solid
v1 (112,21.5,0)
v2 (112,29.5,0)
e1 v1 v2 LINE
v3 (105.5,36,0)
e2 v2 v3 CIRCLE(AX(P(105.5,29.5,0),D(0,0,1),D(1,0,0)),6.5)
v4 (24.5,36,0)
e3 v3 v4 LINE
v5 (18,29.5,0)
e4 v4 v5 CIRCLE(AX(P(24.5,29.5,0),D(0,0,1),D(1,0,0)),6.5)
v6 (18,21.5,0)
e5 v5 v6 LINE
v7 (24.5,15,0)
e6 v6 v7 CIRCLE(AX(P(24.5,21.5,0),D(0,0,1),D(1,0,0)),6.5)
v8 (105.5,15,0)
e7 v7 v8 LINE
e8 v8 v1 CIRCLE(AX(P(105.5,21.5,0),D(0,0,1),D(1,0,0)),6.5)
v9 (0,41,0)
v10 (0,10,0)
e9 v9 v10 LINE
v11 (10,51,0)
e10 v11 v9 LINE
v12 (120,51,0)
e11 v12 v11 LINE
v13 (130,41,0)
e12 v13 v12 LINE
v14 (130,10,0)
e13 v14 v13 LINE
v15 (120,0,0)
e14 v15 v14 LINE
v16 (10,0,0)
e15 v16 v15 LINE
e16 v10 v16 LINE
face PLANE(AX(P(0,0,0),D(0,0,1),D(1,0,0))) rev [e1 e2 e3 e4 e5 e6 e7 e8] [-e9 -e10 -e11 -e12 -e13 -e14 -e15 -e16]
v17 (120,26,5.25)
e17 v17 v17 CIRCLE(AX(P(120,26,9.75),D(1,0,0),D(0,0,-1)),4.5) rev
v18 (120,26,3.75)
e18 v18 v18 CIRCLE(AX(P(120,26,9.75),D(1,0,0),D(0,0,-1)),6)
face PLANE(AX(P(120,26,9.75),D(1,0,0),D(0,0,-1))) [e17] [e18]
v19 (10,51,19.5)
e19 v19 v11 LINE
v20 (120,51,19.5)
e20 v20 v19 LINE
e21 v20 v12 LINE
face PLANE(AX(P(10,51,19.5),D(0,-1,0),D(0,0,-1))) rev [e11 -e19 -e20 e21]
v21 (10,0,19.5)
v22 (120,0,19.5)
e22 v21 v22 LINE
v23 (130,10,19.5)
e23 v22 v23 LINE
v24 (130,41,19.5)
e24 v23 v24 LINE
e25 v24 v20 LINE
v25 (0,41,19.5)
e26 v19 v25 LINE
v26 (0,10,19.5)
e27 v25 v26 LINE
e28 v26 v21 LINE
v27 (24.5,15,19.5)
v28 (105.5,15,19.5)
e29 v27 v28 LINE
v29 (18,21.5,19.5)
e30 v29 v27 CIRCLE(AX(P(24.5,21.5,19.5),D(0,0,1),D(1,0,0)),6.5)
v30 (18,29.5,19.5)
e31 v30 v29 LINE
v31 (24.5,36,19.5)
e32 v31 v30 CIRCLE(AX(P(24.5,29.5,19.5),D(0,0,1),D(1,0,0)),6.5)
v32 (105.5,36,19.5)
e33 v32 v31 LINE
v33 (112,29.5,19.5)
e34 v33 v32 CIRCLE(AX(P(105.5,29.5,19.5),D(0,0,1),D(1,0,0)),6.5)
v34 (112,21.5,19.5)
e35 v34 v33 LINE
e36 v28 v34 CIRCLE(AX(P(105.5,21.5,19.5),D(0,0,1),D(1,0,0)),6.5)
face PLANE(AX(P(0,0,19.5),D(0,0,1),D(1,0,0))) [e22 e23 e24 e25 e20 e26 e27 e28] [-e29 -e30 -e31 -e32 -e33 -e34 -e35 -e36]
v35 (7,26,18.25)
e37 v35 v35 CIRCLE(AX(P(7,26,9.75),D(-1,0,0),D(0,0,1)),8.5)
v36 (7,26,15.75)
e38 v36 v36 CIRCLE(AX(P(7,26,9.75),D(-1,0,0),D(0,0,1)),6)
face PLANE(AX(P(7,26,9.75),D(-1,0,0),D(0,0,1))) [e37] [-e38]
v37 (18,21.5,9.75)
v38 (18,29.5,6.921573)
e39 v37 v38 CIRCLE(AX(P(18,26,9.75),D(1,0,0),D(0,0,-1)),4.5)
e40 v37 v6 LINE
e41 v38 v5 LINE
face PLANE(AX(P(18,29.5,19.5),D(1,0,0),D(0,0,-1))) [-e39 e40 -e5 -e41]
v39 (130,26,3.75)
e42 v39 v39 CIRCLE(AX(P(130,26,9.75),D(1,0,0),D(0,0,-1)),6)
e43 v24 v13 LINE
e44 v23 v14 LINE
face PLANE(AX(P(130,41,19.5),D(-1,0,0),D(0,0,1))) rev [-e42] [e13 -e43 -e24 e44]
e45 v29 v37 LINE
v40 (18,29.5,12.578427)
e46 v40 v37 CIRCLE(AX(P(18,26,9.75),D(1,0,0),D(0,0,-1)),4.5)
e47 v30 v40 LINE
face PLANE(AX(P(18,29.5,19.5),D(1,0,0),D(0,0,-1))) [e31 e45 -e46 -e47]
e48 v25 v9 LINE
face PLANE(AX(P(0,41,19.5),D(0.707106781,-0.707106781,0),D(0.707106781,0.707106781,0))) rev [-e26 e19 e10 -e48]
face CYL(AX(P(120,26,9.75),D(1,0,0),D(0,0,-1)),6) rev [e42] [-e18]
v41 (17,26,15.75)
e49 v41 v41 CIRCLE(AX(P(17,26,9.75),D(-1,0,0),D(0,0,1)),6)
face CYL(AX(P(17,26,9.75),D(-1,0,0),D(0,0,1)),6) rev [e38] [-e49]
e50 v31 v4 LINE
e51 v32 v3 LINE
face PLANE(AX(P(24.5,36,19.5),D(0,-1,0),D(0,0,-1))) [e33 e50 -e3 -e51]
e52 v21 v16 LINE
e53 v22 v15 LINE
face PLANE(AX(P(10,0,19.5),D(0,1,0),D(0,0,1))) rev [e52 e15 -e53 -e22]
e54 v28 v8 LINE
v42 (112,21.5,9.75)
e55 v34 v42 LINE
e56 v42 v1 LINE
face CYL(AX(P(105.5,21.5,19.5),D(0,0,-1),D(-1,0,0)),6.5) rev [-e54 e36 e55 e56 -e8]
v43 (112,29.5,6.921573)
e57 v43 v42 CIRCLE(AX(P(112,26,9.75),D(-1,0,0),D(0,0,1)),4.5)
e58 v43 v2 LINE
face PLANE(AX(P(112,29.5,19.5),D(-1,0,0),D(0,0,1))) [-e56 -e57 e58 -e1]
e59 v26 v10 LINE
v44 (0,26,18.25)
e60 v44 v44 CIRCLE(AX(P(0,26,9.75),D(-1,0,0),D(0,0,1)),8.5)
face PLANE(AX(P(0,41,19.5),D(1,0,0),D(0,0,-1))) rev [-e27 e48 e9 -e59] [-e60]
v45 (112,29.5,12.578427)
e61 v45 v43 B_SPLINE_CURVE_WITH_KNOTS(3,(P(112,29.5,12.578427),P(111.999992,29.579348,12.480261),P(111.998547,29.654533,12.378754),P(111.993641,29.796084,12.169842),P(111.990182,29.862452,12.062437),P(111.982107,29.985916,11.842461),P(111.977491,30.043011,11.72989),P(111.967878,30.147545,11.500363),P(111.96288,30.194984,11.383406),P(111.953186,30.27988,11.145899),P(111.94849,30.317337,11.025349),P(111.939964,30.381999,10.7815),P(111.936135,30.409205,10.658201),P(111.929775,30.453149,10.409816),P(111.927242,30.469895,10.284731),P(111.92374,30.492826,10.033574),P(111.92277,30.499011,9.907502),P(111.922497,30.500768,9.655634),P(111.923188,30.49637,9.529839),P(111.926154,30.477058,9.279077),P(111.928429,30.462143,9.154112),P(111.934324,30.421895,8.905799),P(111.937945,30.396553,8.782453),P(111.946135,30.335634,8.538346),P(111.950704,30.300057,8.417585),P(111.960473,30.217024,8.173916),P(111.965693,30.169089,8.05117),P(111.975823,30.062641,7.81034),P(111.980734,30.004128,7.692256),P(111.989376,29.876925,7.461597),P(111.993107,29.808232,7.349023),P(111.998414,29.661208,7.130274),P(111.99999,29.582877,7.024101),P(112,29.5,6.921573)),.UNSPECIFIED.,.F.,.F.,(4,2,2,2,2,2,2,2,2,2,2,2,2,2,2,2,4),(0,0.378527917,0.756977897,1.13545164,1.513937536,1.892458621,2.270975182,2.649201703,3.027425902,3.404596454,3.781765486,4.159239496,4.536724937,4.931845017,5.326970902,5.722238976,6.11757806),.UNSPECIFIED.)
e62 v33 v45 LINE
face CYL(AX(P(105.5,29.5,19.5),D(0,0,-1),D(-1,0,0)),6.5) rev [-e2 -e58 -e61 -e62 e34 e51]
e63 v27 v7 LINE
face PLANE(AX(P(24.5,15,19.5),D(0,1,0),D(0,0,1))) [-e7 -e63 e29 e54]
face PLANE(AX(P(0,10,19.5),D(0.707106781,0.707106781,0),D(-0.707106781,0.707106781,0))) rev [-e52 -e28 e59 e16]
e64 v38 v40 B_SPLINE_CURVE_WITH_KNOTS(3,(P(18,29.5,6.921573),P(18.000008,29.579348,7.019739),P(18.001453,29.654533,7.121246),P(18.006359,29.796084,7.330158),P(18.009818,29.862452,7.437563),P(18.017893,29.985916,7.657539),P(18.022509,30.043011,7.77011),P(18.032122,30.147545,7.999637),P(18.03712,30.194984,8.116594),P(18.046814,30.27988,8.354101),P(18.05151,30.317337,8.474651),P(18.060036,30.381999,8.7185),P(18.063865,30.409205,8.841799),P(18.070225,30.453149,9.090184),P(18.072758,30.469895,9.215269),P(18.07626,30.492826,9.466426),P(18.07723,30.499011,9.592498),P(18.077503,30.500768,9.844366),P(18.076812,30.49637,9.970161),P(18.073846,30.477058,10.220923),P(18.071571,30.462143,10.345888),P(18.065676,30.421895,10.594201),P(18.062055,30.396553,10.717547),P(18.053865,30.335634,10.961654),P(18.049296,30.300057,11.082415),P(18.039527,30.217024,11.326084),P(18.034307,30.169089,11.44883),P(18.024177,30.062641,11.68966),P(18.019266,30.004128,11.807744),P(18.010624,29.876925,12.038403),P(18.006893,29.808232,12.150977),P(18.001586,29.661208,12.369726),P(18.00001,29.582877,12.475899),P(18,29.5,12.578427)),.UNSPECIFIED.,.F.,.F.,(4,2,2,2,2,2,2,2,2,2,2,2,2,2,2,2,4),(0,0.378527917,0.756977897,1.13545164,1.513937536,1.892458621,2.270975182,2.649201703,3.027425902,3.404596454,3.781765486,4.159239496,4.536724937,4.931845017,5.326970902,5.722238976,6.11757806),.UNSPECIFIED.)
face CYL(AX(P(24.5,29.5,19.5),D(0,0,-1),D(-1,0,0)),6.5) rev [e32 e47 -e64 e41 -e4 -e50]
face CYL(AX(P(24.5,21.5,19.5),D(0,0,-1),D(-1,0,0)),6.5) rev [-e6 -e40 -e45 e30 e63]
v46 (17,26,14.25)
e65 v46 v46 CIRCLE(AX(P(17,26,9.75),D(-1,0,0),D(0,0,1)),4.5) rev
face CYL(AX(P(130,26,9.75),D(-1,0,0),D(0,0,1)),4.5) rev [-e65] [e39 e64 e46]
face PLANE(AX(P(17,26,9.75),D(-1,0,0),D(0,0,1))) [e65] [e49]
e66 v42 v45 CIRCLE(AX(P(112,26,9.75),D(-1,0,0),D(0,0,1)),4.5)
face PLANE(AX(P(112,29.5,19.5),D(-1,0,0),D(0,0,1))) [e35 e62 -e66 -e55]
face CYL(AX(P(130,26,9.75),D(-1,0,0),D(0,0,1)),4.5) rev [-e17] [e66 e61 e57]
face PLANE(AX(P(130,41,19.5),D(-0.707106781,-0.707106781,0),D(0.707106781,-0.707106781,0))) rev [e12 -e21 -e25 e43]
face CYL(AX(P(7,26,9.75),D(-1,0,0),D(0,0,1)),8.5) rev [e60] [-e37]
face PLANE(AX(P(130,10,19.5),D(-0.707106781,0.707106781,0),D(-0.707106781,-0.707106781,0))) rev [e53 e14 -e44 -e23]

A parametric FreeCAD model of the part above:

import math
import FreeCAD as App
import Part
import Sketcher
from FreeCAD import Vector
Q = App.Units.Quantity


def add_polygon(sketch, points):
    """Adds a closed chain of lines whose ends are joined by coincident constraints."""
    first, n = sketch.GeometryCount, len(points)
    for a, b in zip(points, points[1:] + points[:1]):
        sketch.addGeometry(Part.LineSegment(App.Vector(*a, 0), App.Vector(*b, 0)), False)
    for i in range(n):
        sketch.addConstraint(Sketcher.Constraint("Coincident", first + i, 2, first + (i + 1) % n, 1))

doc = App.newDocument("Part")
body = doc.addObject("PartDesign::Body", "Body")

# Sketch on XY plane
sketch1 = doc.addObject("Sketcher::SketchObject", "Sketch")
body.addObject(sketch1)
sketch1.AttachmentSupport = (doc.XY_Plane, [""])
sketch1.MapMode = "FlatFace"
add_polygon(sketch1, [(0, 41), (0, 10), (10, 0), (120, 0), (130, 10), (130, 41), (120, 51), (10, 51)])  # lines 0-7
sketch1.addGeometry(Part.LineSegment(Vector(105.5, 15, 0), Vector(24.5, 15, 0)), False)  # 8
sketch1.addGeometry(Part.ArcOfCircle(Part.Circle(Vector(24.5, 21.5, 0), Vector(0, 0, 1), 6.5), math.radians(180), math.radians(270)), False)  # 9
sketch1.addGeometry(Part.LineSegment(Vector(18, 21.5, 0), Vector(18, 29.5, 0)), False)  # 10
sketch1.addGeometry(Part.ArcOfCircle(Part.Circle(Vector(24.5, 29.5, 0), Vector(0, 0, 1), 6.5), math.radians(90), math.radians(180)), False)  # 11
sketch1.addGeometry(Part.LineSegment(Vector(24.5, 36, 0), Vector(105.5, 36, 0)), False)  # 12
sketch1.addGeometry(Part.ArcOfCircle(Part.Circle(Vector(105.5, 29.5, 0), Vector(0, 0, 1), 6.5), math.radians(0), math.radians(90)), False)  # 13
sketch1.addGeometry(Part.LineSegment(Vector(112, 29.5, 0), Vector(112, 21.5, 0)), False)  # 14
sketch1.addGeometry(Part.ArcOfCircle(Part.Circle(Vector(105.5, 21.5, 0), Vector(0, 0, 1), 6.5), math.radians(-90), math.radians(0)), False)  # 15
sketch1.addConstraint(Sketcher.Constraint("Tangent", 8, 2, 9, 2))
sketch1.addConstraint(Sketcher.Constraint("Tangent", 9, 1, 10, 1))
sketch1.addConstraint(Sketcher.Constraint("Tangent", 10, 2, 11, 2))
sketch1.addConstraint(Sketcher.Constraint("Tangent", 11, 1, 12, 1))
sketch1.addConstraint(Sketcher.Constraint("Tangent", 12, 2, 13, 2))
sketch1.addConstraint(Sketcher.Constraint("Tangent", 13, 1, 14, 1))
sketch1.addConstraint(Sketcher.Constraint("Tangent", 14, 2, 15, 2))
sketch1.addConstraint(Sketcher.Constraint("Tangent", 15, 1, 8, 1))
sketch1.addConstraint(Sketcher.Constraint("Vertical", 0))
sketch1.addConstraint(Sketcher.Constraint("Horizontal", 2))
sketch1.addConstraint(Sketcher.Constraint("Vertical", 4))
sketch1.addConstraint(Sketcher.Constraint("Horizontal", 6))
sketch1.addConstraint(Sketcher.Constraint("Horizontal", 8))
sketch1.addConstraint(Sketcher.Constraint("Vertical", 10))
sketch1.addConstraint(Sketcher.Constraint("Horizontal", 12))
sketch1.addConstraint(Sketcher.Constraint("Vertical", 14))
sketch1.addConstraint(Sketcher.Constraint("Equal", 9, 11))
sketch1.addConstraint(Sketcher.Constraint("Equal", 11, 13))
sketch1.addConstraint(Sketcher.Constraint("Equal", 13, 15))
sketch1.addConstraint(Sketcher.Constraint("PointOnObject", 0, 2, -2))
sketch1.addConstraint(Sketcher.Constraint("PointOnObject", 1, 2, -1))
sketch1.addConstraint(Sketcher.Constraint("Perpendicular", 1, 3))
sketch1.addConstraint(Sketcher.Constraint("Perpendicular", 3, 5))
sketch1.addConstraint(Sketcher.Constraint("Perpendicular", 5, 7))
sketch1.addConstraint(Sketcher.Constraint("Horizontal", 0, 2, 3, 2))
sketch1.addConstraint(Sketcher.Constraint("Horizontal", 4, 2, 7, 2))
sketch1.addConstraint(Sketcher.Constraint("Vertical", 2, 2, 5, 2))
sketch1.addConstraint(Sketcher.Constraint("Vertical", 1, 2, 6, 2))
sketch1.addConstraint(Sketcher.Constraint("Radius", 9, Q("6.5 mm")))
sketch1.addConstraint(Sketcher.Constraint("DistanceX", 2, 1, 2, 2, Q("110 mm")))
sketch1.addConstraint(Sketcher.Constraint("DistanceX", 8, 2, 8, 1, Q("81 mm")))
sketch1.addConstraint(Sketcher.Constraint("DistanceY", 0, 2, 0, 1, Q("31 mm")))
sketch1.addConstraint(Sketcher.Constraint("DistanceY", 10, 1, 10, 2, Q("8 mm")))
sketch1.addConstraint(Sketcher.Constraint("DistanceY", -1, 1, 0, 2, Q("10 mm")))
sketch1.addConstraint(Sketcher.Constraint("DistanceY", -1, 1, 8, 2, Q("15 mm")))
sketch1.addConstraint(Sketcher.Constraint("DistanceX", -1, 1, 9, 1, Q("18 mm")))
pad1 = doc.addObject("PartDesign::Pad", "Pad")
body.addObject(pad1)
pad1.Profile = sketch1
pad1.Length = 19.5

# Sketch on YZ plane
sketch2 = doc.addObject("Sketcher::SketchObject", "Sketch001")
body.addObject(sketch2)
sketch2.AttachmentSupport = (doc.YZ_Plane, [""])
sketch2.MapMode = "FlatFace"
sketch2.addGeometry(Part.Circle(Vector(26, 9.75, 0), Vector(0, 0, 1), 8.5), False)
sketch2.addConstraint(Sketcher.Constraint("Diameter", 0, Q("17 mm")))
sketch2.addConstraint(Sketcher.Constraint("DistanceX", -1, 1, 0, 3, Q("26 mm")))
sketch2.addConstraint(Sketcher.Constraint("DistanceY", -1, 1, 0, 3, Q("9.75 mm")))
pocket1 = doc.addObject("PartDesign::Pocket", "Pocket")
body.addObject(pocket1)
pocket1.Profile = sketch2
pocket1.Length = 7
pocket1.Reversed = True

# Sketch on YZ plane
sketch3 = doc.addObject("Sketcher::SketchObject", "Sketch002")
body.addObject(sketch3)
sketch3.AttachmentSupport = (doc.YZ_Plane, [""])
sketch3.MapMode = "FlatFace"
sketch3.addGeometry(Part.Circle(Vector(26, 9.75, 0), Vector(0, 0, 1), 4.5), False)
sketch3.addConstraint(Sketcher.Constraint("Diameter", 0, Q("9 mm")))
sketch3.addConstraint(Sketcher.Constraint("DistanceX", -1, 1, 0, 3, Q("26 mm")))
sketch3.addConstraint(Sketcher.Constraint("DistanceY", -1, 1, 0, 3, Q("9.75 mm")))
pocket2 = doc.addObject("PartDesign::Pocket", "Pocket001")
body.addObject(pocket2)
pocket2.Profile = sketch3
pocket2.Type = "ThroughAll"
pocket2.Reversed = True

# Sketch on YZ plane
sketch4 = doc.addObject("Sketcher::SketchObject", "Sketch003")
body.addObject(sketch4)
sketch4.AttachmentSupport = (doc.YZ_Plane, [""])
sketch4.MapMode = "FlatFace"
sketch4.AttachmentOffset = App.Placement(Vector(0, 0, 7), App.Rotation())
sketch4.addGeometry(Part.Circle(Vector(26, 9.75, 0), Vector(0, 0, 1), 6), False)
sketch4.addConstraint(Sketcher.Constraint("Diameter", 0, Q("12 mm")))
sketch4.addConstraint(Sketcher.Constraint("DistanceX", -1, 1, 0, 3, Q("26 mm")))
sketch4.addConstraint(Sketcher.Constraint("DistanceY", -1, 1, 0, 3, Q("9.75 mm")))
pocket3 = doc.addObject("PartDesign::Pocket", "Pocket002")
body.addObject(pocket3)
pocket3.Profile = sketch4
pocket3.Length = 10
pocket3.Reversed = True

# Sketch on YZ plane
sketch5 = doc.addObject("Sketcher::SketchObject", "Sketch004")
body.addObject(sketch5)
sketch5.AttachmentSupport = (doc.YZ_Plane, [""])
sketch5.MapMode = "FlatFace"
sketch5.AttachmentOffset = App.Placement(Vector(0, 0, 120), App.Rotation())
sketch5.addGeometry(Part.Circle(Vector(26, 9.75, 0), Vector(0, 0, 1), 6), False)
sketch5.addConstraint(Sketcher.Constraint("Diameter", 0, Q("12 mm")))
sketch5.addConstraint(Sketcher.Constraint("DistanceX", -1, 1, 0, 3, Q("26 mm")))
sketch5.addConstraint(Sketcher.Constraint("DistanceY", -1, 1, 0, 3, Q("9.75 mm")))
pocket4 = doc.addObject("PartDesign::Pocket", "Pocket003")
body.addObject(pocket4)
pocket4.Profile = sketch5
pocket4.Length = 10
pocket4.Reversed = True

doc.recompute()
